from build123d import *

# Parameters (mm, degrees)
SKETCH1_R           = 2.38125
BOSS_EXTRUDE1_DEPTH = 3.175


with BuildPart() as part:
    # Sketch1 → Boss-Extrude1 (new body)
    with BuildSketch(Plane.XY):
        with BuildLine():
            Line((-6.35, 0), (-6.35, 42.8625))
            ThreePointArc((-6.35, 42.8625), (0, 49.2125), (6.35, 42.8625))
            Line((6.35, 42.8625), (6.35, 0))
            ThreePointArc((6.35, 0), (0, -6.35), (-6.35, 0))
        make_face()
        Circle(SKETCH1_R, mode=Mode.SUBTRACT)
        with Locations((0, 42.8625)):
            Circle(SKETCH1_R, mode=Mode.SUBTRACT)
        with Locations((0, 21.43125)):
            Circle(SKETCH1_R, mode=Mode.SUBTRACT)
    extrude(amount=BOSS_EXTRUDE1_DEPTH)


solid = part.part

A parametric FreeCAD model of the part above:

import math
import FreeCAD as App
import Part
import Sketcher
Q = App.Units.Quantity

doc = App.newDocument("Part")
body = doc.addObject("PartDesign::Body", "Body")

sketch1 = body.newObject("Sketcher::SketchObject", "Sketch")
sketch1.AttachmentSupport = (doc.getObject("XY_Plane"), [""])
sketch1.MapMode = "FlatFace"
sketch1.addGeometry([
    Part.LineSegment(App.Vector(-6.3, 42.9, 0), App.Vector(-6.3, 0, 0)),
    Part.ArcOfCircle(Part.Circle(App.Vector(0, 0, 0), App.Vector(0, 0, 1), 6.3), math.radians(180), math.radians(360)),
    Part.LineSegment(App.Vector(6.3, 0, 0), App.Vector(6.3, 42.9, 0)),
    Part.ArcOfCircle(Part.Circle(App.Vector(0, 42.9, 0), App.Vector(0, 0, 1), 6.3), math.radians(0), math.radians(180)),
    Part.Circle(App.Vector(0, 0, 0), App.Vector(0, 0, 1), 2.4),
    Part.Circle(App.Vector(0, 21.4, 0), App.Vector(0, 0, 1), 2.4),
    Part.Circle(App.Vector(0, 42.9, 0), App.Vector(0, 0, 1), 2.4),
], False)
sketch1.addConstraint([
    Sketcher.Constraint("Tangent", 0, 2, 1, 1),
    Sketcher.Constraint("Tangent", 1, 2, 2, 1),
    Sketcher.Constraint("Tangent", 2, 2, 3, 1),
    Sketcher.Constraint("Tangent", 3, 2, 0, 1),
    Sketcher.Constraint("Vertical", 0),
    Sketcher.Constraint("Vertical", 2),
    Sketcher.Constraint("Coincident", 1, 3, -1, 1),
    Sketcher.Constraint("Coincident", 4, 3, -1, 1),
    Sketcher.Constraint("Coincident", 6, 3, 3, 3),
    Sketcher.Constraint("Equal", 4, 5),
    Sketcher.Constraint("Equal", 5, 6),
    Sketcher.Constraint("PointOnObject", 5, 3, -2),
    Sketcher.Constraint("Radius", 1, Q("0.25 in")),
    Sketcher.Constraint("Diameter", 4, Q("0.1875 in")),
    Sketcher.Constraint("DistanceY", 0, 2, 0, 1, Q("1.6875 in")),
    Sketcher.Constraint("DistanceY", -1, 1, 5, 3, Q("0.84375 in")),
])
pad1 = body.newObject("PartDesign::Pad", "Pad")
pad1.Profile = sketch1
pad1.Length = Q("0.125 in")

doc.recompute()
